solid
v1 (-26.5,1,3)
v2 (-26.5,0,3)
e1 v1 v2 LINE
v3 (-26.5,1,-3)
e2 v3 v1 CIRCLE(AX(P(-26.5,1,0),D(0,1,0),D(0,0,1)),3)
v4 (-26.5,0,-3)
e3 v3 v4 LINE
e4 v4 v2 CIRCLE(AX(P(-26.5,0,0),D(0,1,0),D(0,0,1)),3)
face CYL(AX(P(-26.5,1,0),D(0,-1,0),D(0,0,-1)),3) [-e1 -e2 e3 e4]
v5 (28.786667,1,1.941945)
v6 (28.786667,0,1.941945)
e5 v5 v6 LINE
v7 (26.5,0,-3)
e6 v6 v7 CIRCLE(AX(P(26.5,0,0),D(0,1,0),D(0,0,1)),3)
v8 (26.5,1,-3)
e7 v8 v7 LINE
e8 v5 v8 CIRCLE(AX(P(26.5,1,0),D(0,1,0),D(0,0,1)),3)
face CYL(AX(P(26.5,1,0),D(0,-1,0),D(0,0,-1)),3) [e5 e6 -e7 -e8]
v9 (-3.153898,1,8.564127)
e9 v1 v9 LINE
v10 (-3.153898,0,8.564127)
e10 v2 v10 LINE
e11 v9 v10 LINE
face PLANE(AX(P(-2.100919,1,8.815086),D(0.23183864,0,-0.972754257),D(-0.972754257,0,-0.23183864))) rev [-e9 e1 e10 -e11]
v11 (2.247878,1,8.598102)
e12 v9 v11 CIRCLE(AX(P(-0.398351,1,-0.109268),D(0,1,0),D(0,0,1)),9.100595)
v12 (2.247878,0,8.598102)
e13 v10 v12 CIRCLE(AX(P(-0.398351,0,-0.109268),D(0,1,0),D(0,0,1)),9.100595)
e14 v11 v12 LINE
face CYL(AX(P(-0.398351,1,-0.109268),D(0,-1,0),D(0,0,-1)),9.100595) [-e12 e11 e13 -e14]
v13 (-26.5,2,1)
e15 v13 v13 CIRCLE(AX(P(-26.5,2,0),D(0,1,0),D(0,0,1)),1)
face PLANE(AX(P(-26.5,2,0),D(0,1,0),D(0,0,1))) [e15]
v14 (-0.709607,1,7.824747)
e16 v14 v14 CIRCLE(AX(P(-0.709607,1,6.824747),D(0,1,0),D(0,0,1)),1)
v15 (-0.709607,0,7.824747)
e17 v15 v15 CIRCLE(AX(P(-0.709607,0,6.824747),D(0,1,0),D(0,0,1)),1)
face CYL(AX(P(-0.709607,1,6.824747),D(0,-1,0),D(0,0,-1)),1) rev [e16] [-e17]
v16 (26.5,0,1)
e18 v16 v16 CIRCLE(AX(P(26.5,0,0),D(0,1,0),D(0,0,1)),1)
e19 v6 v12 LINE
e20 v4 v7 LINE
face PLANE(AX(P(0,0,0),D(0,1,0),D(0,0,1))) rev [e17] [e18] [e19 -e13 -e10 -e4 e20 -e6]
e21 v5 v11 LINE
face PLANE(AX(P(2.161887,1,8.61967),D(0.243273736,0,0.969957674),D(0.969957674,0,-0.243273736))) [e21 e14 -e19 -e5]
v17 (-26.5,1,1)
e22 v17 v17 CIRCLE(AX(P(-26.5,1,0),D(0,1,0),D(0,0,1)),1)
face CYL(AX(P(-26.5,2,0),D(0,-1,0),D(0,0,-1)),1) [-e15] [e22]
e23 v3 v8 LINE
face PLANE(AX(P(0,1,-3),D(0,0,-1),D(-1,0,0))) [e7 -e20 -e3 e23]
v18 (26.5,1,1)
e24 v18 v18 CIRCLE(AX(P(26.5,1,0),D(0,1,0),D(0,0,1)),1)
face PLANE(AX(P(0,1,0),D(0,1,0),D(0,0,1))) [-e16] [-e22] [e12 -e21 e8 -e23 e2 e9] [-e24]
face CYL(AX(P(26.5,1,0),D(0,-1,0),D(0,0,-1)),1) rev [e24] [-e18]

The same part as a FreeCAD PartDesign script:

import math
import FreeCAD as App
import Part
import Sketcher

V = App.Vector
Q = App.Units.Quantity

doc = App.newDocument("Part")
params = doc.addObject("Spreadsheet::Sheet", "Params")
for row, (alias, value) in enumerate([
    ("sketch1_diameter", "2 mm"),
    ("sketch1_radius", "3 mm"),
    ("sketch1_width", "53 mm"),
    ("sketch1_length", "24 mm"),
    ("pad1_length", "1 mm"),
    ("sketch2_diameter", "2 mm"),
    ("pad2_length", "1 mm"),
    ("sketch3_diameter", "2 mm"),
    ("pad3_length", "1 mm"),
], start=1):
    params.set(f"A{row}", alias)
    params.set(f"B{row}", "=" + value)
    params.setAlias(f"B{row}", alias)

body = doc.addObject("PartDesign::Body", "Body")

sketch1 = body.newObject("Sketcher::SketchObject", "Sketch")
sketch1.AttachmentSupport = (doc.getObject("XZ_Plane"), [""])
sketch1.MapMode = "FlatFace"
sketch1.addGeometry([
    Part.LineSegment(V(26.5, -3, 0), V(-26.5, -3, 0)),
    Part.ArcOfCircle(Part.Circle(V(-26.5, 0, 0), V(0, 0, 1), 3), math.radians(90), math.radians(270)),
    Part.LineSegment(V(-26.5, 3, 0), V(-3.153898, 8.564127, 0)),
    Part.ArcOfCircle(Part.Circle(V(-0.398351, -0.109268, 0), V(0, 0, 1), 9.100595), math.radians(73.09562), math.radians(107.625107)),
    Part.LineSegment(V(2.247878, 8.598102, 0), V(28.786667, 1.941945, 0)),
    Part.ArcOfCircle(Part.Circle(V(26.5, 0, 0), V(0, 0, 1), 3), math.radians(-90), math.radians(40.33948)),
    Part.Circle(V(-0.709607, 6.824747, 0), V(0, 0, 1), 1),
    Part.Circle(V(26.5, 0, 0), V(0, 0, 1), 1),
    Part.Circle(V(-26.5, 0, 0), V(0, 0, 1), 1),
], False)
sketch1.addConstraint([
    Sketcher.Constraint("Tangent", 0, 2, 1, 2),
    Sketcher.Constraint("Coincident", 1, 1, 2, 1),
    Sketcher.Constraint("Coincident", 2, 2, 3, 2),
    Sketcher.Constraint("Coincident", 3, 1, 4, 1),
    Sketcher.Constraint("Coincident", 4, 2, 5, 2),
    Sketcher.Constraint("Tangent", 5, 1, 0, 1),
    Sketcher.Constraint("Horizontal", 0),
    Sketcher.Constraint("Coincident", 7, 3, 5, 3),
    Sketcher.Constraint("Coincident", 8, 3, 1, 3),
    Sketcher.Constraint("Equal", 1, 5),
    Sketcher.Constraint("Equal", 6, 7),
    Sketcher.Constraint("Equal", 7, 8),
    Sketcher.Constraint("Symmetric", 1, 3, 5, 3, -1, 1),
    Sketcher.Constraint("Vertical", 0, 2, 1, 1),
    Sketcher.Constraint("Diameter", 6, Q("2 mm")),
    Sketcher.Constraint("Radius", 1, Q("3 mm")),
    Sketcher.Constraint("DistanceX", 0, 2, 0, 1, Q("53 mm")),
    Sketcher.Constraint("Distance", 2, Q("24 mm")),
    Sketcher.Constraint("Radius", 3, Q("9.100595 mm")),
    Sketcher.Constraint("DistanceY", 4, 2, 6, 3, Q("4.882802 mm")),
    Sketcher.Constraint("Distance", 4, Q("27.360771 mm")),
    Sketcher.Constraint("DistanceX", 3, 3, -1, 1, Q("0.398351 mm")),
    Sketcher.Constraint("DistanceY", 3, 3, -1, 1, Q("0.109268 mm")),
    Sketcher.Constraint("DistanceX", 2, 2, 6, 3, Q("2.44429 mm")),
    Sketcher.Constraint("DistanceY", 6, 3, 2, 2, Q("1.73938 mm")),
])
sketch1.setExpression("Constraints[14]", "Params.sketch1_diameter")
sketch1.setExpression("Constraints[15]", "Params.sketch1_radius")
sketch1.setExpression("Constraints[16]", "Params.sketch1_width")
sketch1.setExpression("Constraints[17]", "Params.sketch1_length")
pad1 = body.newObject("PartDesign::Pad", "Pad")
pad1.Profile = sketch1
pad1.setExpression("Length", "Params.pad1_length")
pad1.Reversed = True
body2 = doc.addObject("PartDesign::Body", "Body001")

sketch2 = body2.newObject("Sketcher::SketchObject", "Sketch001")
sketch2.AttachmentSupport = (doc.getObject("XZ_Plane001"), [""])
sketch2.MapMode = "FlatFace"
sketch2.AttachmentOffset = App.Placement(V(0, 0, -1), App.Rotation())
sketch2.addGeometry(Part.Circle(V(-26.5, 0, 0), V(0, 0, 1), 1), False)
sketch2.addConstraint([
    Sketcher.Constraint("PointOnObject", 0, 3, -1),
    Sketcher.Constraint("Diameter", 0, Q("2 mm")),
    Sketcher.Constraint("DistanceX", 0, 3, -1, 1, Q("26.5 mm")),
])
sketch2.setExpression("Constraints[1]", "Params.sketch2_diameter")
pad2 = body2.newObject("PartDesign::Pad", "Pad001")
pad2.Profile = sketch2
pad2.setExpression("Length", "Params.pad2_length")
pad2.Reversed = True
body.AllowCompound = True
doc.recompute()

boolean = body.newObject("PartDesign::Boolean", "Boolean")
boolean.Type = "Fuse"
boolean.addObjects([body2])

sketch3 = body.newObject("Sketcher::SketchObject", "Sketch002")
sketch3.AttachmentSupport = (doc.getObject("XZ_Plane"), [""])
sketch3.MapMode = "FlatFace"
sketch3.addGeometry(Part.Circle(V(-26.5, 0, 0), V(0, 0, 1), 1), False)
sketch3.addConstraint([
    Sketcher.Constraint("PointOnObject", 0, 3, -1),
    Sketcher.Constraint("Diameter", 0, Q("2 mm")),
    Sketcher.Constraint("DistanceX", 0, 3, -1, 1, Q("26.5 mm")),
])
sketch3.setExpression("Constraints[1]", "Params.sketch3_diameter")
pad3 = body.newObject("PartDesign::Pad", "Pad002")
pad3.Profile = sketch3
pad3.setExpression("Length", "Params.pad3_length")
pad3.Reversed = True

doc.recompute()
